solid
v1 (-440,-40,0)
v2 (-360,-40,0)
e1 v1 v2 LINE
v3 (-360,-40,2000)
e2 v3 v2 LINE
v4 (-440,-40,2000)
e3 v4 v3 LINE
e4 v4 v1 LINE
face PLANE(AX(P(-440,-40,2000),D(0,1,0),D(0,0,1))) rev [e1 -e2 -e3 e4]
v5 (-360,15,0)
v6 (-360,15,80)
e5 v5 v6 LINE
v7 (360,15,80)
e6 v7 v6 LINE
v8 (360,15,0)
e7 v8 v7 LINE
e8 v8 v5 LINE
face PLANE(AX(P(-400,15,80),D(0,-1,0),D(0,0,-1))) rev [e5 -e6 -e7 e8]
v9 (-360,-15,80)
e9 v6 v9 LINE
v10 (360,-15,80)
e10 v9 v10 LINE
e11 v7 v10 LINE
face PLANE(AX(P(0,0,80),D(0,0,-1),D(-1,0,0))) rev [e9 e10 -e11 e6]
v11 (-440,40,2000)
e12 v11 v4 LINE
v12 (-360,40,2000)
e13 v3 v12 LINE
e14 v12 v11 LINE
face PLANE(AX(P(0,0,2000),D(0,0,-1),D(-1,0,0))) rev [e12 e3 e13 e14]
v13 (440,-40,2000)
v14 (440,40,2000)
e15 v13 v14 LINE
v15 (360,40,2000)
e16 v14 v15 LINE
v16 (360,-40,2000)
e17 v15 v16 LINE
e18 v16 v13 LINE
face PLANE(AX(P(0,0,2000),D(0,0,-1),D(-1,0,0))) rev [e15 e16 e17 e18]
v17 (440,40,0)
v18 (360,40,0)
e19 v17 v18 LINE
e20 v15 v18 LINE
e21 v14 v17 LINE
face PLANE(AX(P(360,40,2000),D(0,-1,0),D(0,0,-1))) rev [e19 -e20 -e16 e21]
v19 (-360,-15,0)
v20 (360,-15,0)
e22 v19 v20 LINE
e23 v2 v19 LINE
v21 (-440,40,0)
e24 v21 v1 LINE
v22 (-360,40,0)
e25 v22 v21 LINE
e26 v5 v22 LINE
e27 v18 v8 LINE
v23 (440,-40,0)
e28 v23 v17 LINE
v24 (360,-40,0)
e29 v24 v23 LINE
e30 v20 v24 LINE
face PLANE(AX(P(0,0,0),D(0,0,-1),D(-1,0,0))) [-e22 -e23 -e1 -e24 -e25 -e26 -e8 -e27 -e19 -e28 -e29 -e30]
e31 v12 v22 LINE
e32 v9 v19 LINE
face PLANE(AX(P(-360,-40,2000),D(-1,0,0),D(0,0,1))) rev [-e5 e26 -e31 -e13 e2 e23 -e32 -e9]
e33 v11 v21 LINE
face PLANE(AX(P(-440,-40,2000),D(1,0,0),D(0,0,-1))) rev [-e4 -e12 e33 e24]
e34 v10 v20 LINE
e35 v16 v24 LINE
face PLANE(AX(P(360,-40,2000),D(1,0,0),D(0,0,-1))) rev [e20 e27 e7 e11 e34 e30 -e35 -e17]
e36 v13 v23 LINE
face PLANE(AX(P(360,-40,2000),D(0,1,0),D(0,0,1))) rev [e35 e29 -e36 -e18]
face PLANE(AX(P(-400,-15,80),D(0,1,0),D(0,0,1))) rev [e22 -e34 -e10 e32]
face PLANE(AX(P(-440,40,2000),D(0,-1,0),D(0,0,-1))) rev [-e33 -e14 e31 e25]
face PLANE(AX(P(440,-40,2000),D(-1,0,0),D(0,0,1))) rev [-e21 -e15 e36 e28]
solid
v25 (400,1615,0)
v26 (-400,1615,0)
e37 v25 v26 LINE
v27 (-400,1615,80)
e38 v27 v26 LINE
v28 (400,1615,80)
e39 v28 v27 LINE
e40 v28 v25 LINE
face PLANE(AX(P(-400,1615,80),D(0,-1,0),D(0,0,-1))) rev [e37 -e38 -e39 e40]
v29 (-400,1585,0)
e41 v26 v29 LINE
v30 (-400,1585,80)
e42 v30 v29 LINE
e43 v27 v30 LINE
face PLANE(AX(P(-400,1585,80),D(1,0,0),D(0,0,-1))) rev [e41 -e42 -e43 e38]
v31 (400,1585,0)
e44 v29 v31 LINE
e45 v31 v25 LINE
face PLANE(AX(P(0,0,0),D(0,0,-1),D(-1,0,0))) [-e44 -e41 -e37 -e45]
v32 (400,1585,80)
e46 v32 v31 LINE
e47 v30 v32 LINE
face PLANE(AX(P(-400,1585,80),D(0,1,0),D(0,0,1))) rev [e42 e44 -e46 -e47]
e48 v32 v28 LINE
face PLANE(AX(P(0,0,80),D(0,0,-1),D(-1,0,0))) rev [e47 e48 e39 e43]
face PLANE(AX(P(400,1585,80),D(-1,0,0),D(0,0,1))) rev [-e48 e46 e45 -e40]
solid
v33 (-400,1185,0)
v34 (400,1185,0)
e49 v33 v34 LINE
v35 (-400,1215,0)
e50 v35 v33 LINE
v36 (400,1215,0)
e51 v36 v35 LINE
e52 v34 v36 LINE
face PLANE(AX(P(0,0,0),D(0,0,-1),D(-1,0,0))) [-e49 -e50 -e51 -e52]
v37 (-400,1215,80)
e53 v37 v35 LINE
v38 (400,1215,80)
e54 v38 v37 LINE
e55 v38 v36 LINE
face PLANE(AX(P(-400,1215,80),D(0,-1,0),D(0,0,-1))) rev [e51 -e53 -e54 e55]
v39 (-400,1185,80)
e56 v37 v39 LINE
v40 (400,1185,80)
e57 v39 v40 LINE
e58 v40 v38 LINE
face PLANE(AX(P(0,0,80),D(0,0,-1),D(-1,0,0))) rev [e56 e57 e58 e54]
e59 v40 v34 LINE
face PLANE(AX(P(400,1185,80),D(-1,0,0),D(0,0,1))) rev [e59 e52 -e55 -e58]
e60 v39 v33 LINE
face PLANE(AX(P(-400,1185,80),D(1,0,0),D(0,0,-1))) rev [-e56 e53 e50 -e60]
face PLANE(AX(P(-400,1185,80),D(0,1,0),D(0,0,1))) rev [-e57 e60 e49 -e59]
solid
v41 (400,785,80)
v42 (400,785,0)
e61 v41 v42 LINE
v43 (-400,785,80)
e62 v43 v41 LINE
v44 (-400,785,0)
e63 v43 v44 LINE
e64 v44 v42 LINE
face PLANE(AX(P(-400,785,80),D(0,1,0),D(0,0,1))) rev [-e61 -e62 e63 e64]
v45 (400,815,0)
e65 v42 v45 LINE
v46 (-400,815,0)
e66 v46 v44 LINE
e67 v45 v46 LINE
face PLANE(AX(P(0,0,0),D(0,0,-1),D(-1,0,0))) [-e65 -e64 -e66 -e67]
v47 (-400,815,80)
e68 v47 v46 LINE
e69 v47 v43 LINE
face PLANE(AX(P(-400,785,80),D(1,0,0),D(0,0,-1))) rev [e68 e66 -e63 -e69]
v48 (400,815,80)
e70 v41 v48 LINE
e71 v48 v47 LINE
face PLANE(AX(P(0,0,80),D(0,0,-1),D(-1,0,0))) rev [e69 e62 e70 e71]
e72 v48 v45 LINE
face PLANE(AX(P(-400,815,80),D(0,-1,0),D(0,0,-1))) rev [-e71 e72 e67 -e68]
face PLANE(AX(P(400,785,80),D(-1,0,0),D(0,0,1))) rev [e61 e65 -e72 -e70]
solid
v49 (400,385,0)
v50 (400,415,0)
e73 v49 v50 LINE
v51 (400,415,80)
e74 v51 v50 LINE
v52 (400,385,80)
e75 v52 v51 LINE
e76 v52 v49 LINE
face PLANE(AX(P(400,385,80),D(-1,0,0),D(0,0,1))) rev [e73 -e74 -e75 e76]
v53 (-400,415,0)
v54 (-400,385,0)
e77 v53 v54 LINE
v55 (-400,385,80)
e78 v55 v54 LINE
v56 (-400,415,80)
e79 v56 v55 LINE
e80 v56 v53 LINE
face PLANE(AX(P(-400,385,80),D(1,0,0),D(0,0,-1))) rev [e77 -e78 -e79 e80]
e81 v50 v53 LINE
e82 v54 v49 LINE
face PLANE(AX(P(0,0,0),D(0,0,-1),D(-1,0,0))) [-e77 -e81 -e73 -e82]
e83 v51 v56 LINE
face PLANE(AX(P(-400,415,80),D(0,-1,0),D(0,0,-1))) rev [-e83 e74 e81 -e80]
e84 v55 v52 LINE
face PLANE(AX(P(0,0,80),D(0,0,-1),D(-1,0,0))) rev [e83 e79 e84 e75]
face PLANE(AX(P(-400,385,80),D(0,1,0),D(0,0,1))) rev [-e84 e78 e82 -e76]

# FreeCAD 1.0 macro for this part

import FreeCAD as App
import Part
import Sketcher

V = App.Vector
Q = App.Units.Quantity


def add_polygon(sketch, points):
    """Adds a closed chain of lines whose ends are joined by coincident constraints."""
    first, n = sketch.GeometryCount, len(points)
    for a, b in zip(points, points[1:] + points[:1]):
        sketch.addGeometry(Part.LineSegment(App.Vector(*a, 0), App.Vector(*b, 0)), False)
    for i in range(n):
        sketch.addConstraint(Sketcher.Constraint("Coincident", first + i, 2, first + (i + 1) % n, 1))

doc = App.newDocument("Part")
params = doc.addObject("Spreadsheet::Sheet", "Params")
for row, (alias, value) in enumerate([
    ("sketch1_width", "80 mm"),
    ("pad1_length", "2000 mm"),
    ("sketch2_width", "80 mm"),
    ("pad2_length", "2000 mm"),
    ("sketch3_width", "800 mm"),
    ("sketch3_height", "30 mm"),
    ("pad3_length", "80 mm"),
    ("sketch4_width", "800 mm"),
    ("sketch4_height", "30 mm"),
    ("pad4_length", "80 mm"),
    ("sketch5_width", "800 mm"),
    ("sketch5_height", "30 mm"),
    ("pad5_length", "80 mm"),
    ("sketch6_width", "800 mm"),
    ("sketch6_height", "30 mm"),
    ("pad6_length", "80 mm"),
    ("sketch7_width", "800 mm"),
    ("sketch7_height", "30 mm"),
    ("pad7_length", "80 mm"),
], start=1):
    params.set(f"A{row}", alias)
    params.set(f"B{row}", "=" + value)
    params.setAlias(f"B{row}", alias)

body = doc.addObject("PartDesign::Body", "Body")

# Sketch on XY plane
sketch1 = body.newObject("Sketcher::SketchObject", "Sketch")
sketch1.AttachmentSupport = (doc.getObject("XY_Plane"), [""])
sketch1.MapMode = "FlatFace"
add_polygon(sketch1, [(-440, 40), (-440, -40), (-360, -40), (-360, 40)])  # lines 0-3
sketch1.addConstraint([
    Sketcher.Constraint("Vertical", 0),
    Sketcher.Constraint("Horizontal", 1),
    Sketcher.Constraint("Vertical", 2),
    Sketcher.Constraint("Horizontal", 3),
    Sketcher.Constraint("Equal", 3, 0),
    Sketcher.Constraint("DistanceX", 1, 1, 1, 2, Q("80 mm")),
    Sketcher.Constraint("DistanceX", 0, 2, -1, 1, Q("440 mm")),
    Sketcher.Constraint("DistanceY", 0, 2, -1, 1, Q("40 mm")),
])
sketch1.setExpression("Constraints[9]", "Params.sketch1_width")
pad1 = body.newObject("PartDesign::Pad", "Pad")
pad1.Profile = sketch1
pad1.setExpression("Length", "Params.pad1_length")
body2 = doc.addObject("PartDesign::Body", "Body001")

# Sketch on XY plane
sketch2 = body2.newObject("Sketcher::SketchObject", "Sketch001")
sketch2.AttachmentSupport = (doc.getObject("XY_Plane001"), [""])
sketch2.MapMode = "FlatFace"
add_polygon(sketch2, [(360, 40), (360, -40), (440, -40), (440, 40)])  # lines 0-3
sketch2.addConstraint([
    Sketcher.Constraint("Vertical", 0),
    Sketcher.Constraint("Horizontal", 1),
    Sketcher.Constraint("Vertical", 2),
    Sketcher.Constraint("Horizontal", 3),
    Sketcher.Constraint("Equal", 3, 0),
    Sketcher.Constraint("DistanceX", 1, 1, 1, 2, Q("80 mm")),
    Sketcher.Constraint("DistanceX", -1, 1, 0, 2, Q("360 mm")),
    Sketcher.Constraint("DistanceY", 0, 2, -1, 1, Q("40 mm")),
])
sketch2.setExpression("Constraints[9]", "Params.sketch2_width")
pad2 = body2.newObject("PartDesign::Pad", "Pad001")
pad2.Profile = sketch2
pad2.setExpression("Length", "Params.pad2_length")
body.AllowCompound = True
doc.recompute()

boolean = body.newObject("PartDesign::Boolean", "Boolean")
boolean.Type = "Fuse"
boolean.addObjects([body2])

# Sketch on XY plane
sketch3 = body.newObject("Sketcher::SketchObject", "Sketch002")
sketch3.AttachmentSupport = (doc.getObject("XY_Plane"), [""])
sketch3.MapMode = "FlatFace"
add_polygon(sketch3, [(-400, 15), (-400, -15), (400, -15), (400, 15)])  # lines 0-3
sketch3.addConstraint([
    Sketcher.Constraint("Vertical", 0),
    Sketcher.Constraint("Horizontal", 1),
    Sketcher.Constraint("Vertical", 2),
    Sketcher.Constraint("Horizontal", 3),
    Sketcher.Constraint("Symmetric", 0, 2, 2, 2, -1, 1),
    Sketcher.Constraint("DistanceX", 1, 1, 1, 2, Q("800 mm")),
    Sketcher.Constraint("DistanceY", 0, 2, 0, 1, Q("30 mm")),
])
sketch3.setExpression("Constraints[9]", "Params.sketch3_width")
sketch3.setExpression("Constraints[10]", "Params.sketch3_height")
pad3 = body.newObject("PartDesign::Pad", "Pad002")
pad3.Profile = sketch3
pad3.setExpression("Length", "Params.pad3_length")
body3 = doc.addObject("PartDesign::Body", "Body002")

# Sketch on XY plane
sketch4 = body3.newObject("Sketcher::SketchObject", "Sketch003")
sketch4.AttachmentSupport = (doc.getObject("XY_Plane002"), [""])
sketch4.MapMode = "FlatFace"
add_polygon(sketch4, [(-400, 415), (-400, 385), (400, 385), (400, 415)])  # lines 0-3
sketch4.addConstraint([
    Sketcher.Constraint("Vertical", 0),
    Sketcher.Constraint("Horizontal", 1),
    Sketcher.Constraint("Vertical", 2),
    Sketcher.Constraint("Horizontal", 3),
    Sketcher.Constraint("DistanceX", 1, 1, 1, 2, Q("800 mm")),
    Sketcher.Constraint("DistanceY", 0, 2, 0, 1, Q("30 mm")),
    Sketcher.Constraint("DistanceX", 0, 2, -1, 1, Q("400 mm")),
    Sketcher.Constraint("DistanceY", -1, 1, 0, 2, Q("385 mm")),
])
sketch4.setExpression("Constraints[8]", "Params.sketch4_width")
sketch4.setExpression("Constraints[9]", "Params.sketch4_height")
pad4 = body3.newObject("PartDesign::Pad", "Pad003")
pad4.Profile = sketch4
pad4.setExpression("Length", "Params.pad4_length")
body4 = doc.addObject("PartDesign::Body", "Body003")

# Sketch on XY plane
sketch5 = body4.newObject("Sketcher::SketchObject", "Sketch004")
sketch5.AttachmentSupport = (doc.getObject("XY_Plane003"), [""])
sketch5.MapMode = "FlatFace"
add_polygon(sketch5, [(-400, 815), (-400, 785), (400, 785), (400, 815)])  # lines 0-3
sketch5.addConstraint([
    Sketcher.Constraint("Vertical", 0),
    Sketcher.Constraint("Horizontal", 1),
    Sketcher.Constraint("Vertical", 2),
    Sketcher.Constraint("Horizontal", 3),
    Sketcher.Constraint("DistanceX", 1, 1, 1, 2, Q("800 mm")),
    Sketcher.Constraint("DistanceY", 0, 2, 0, 1, Q("30 mm")),
    Sketcher.Constraint("DistanceX", 0, 2, -1, 1, Q("400 mm")),
    Sketcher.Constraint("DistanceY", -1, 1, 0, 2, Q("785 mm")),
])
sketch5.setExpression("Constraints[8]", "Params.sketch5_width")
sketch5.setExpression("Constraints[9]", "Params.sketch5_height")
pad5 = body4.newObject("PartDesign::Pad", "Pad004")
pad5.Profile = sketch5
pad5.setExpression("Length", "Params.pad5_length")
body5 = doc.addObject("PartDesign::Body", "Body004")

# Sketch on XY plane
sketch6 = body5.newObject("Sketcher::SketchObject", "Sketch005")
sketch6.AttachmentSupport = (doc.getObject("XY_Plane004"), [""])
sketch6.MapMode = "FlatFace"
add_polygon(sketch6, [(-400, 1215), (-400, 1185), (400, 1185), (400, 1215)])  # lines 0-3
sketch6.addConstraint([
    Sketcher.Constraint("Vertical", 0),
    Sketcher.Constraint("Horizontal", 1),
    Sketcher.Constraint("Vertical", 2),
    Sketcher.Constraint("Horizontal", 3),
    Sketcher.Constraint("DistanceX", 1, 1, 1, 2, Q("800 mm")),
    Sketcher.Constraint("DistanceY", 0, 2, 0, 1, Q("30 mm")),
    Sketcher.Constraint("DistanceX", 0, 2, -1, 1, Q("400 mm")),
    Sketcher.Constraint("DistanceY", -1, 1, 0, 2, Q("1185 mm")),
])
sketch6.setExpression("Constraints[8]", "Params.sketch6_width")
sketch6.setExpression("Constraints[9]", "Params.sketch6_height")
pad6 = body5.newObject("PartDesign::Pad", "Pad005")
pad6.Profile = sketch6
pad6.setExpression("Length", "Params.pad6_length")
body6 = doc.addObject("PartDesign::Body", "Body005")

# Sketch on XY plane
sketch7 = body6.newObject("Sketcher::SketchObject", "Sketch006")
sketch7.AttachmentSupport = (doc.getObject("XY_Plane005"), [""])
sketch7.MapMode = "FlatFace"
add_polygon(sketch7, [(-400, 1615), (-400, 1585), (400, 1585), (400, 1615)])  # lines 0-3
sketch7.addConstraint([
    Sketcher.Constraint("Vertical", 0),
    Sketcher.Constraint("Horizontal", 1),
    Sketcher.Constraint("Vertical", 2),
    Sketcher.Constraint("Horizontal", 3),
    Sketcher.Constraint("DistanceX", 1, 1, 1, 2, Q("800 mm")),
    Sketcher.Constraint("DistanceY", 0, 2, 0, 1, Q("30 mm")),
    Sketcher.Constraint("DistanceX", 0, 2, -1, 1, Q("400 mm")),
    Sketcher.Constraint("DistanceY", -1, 1, 0, 2, Q("1585 mm")),
])
sketch7.setExpression("Constraints[8]", "Params.sketch7_width")
sketch7.setExpression("Constraints[9]", "Params.sketch7_height")
pad7 = body6.newObject("PartDesign::Pad", "Pad006")
pad7.Profile = sketch7
pad7.setExpression("Length", "Params.pad7_length")

doc.recompute()
